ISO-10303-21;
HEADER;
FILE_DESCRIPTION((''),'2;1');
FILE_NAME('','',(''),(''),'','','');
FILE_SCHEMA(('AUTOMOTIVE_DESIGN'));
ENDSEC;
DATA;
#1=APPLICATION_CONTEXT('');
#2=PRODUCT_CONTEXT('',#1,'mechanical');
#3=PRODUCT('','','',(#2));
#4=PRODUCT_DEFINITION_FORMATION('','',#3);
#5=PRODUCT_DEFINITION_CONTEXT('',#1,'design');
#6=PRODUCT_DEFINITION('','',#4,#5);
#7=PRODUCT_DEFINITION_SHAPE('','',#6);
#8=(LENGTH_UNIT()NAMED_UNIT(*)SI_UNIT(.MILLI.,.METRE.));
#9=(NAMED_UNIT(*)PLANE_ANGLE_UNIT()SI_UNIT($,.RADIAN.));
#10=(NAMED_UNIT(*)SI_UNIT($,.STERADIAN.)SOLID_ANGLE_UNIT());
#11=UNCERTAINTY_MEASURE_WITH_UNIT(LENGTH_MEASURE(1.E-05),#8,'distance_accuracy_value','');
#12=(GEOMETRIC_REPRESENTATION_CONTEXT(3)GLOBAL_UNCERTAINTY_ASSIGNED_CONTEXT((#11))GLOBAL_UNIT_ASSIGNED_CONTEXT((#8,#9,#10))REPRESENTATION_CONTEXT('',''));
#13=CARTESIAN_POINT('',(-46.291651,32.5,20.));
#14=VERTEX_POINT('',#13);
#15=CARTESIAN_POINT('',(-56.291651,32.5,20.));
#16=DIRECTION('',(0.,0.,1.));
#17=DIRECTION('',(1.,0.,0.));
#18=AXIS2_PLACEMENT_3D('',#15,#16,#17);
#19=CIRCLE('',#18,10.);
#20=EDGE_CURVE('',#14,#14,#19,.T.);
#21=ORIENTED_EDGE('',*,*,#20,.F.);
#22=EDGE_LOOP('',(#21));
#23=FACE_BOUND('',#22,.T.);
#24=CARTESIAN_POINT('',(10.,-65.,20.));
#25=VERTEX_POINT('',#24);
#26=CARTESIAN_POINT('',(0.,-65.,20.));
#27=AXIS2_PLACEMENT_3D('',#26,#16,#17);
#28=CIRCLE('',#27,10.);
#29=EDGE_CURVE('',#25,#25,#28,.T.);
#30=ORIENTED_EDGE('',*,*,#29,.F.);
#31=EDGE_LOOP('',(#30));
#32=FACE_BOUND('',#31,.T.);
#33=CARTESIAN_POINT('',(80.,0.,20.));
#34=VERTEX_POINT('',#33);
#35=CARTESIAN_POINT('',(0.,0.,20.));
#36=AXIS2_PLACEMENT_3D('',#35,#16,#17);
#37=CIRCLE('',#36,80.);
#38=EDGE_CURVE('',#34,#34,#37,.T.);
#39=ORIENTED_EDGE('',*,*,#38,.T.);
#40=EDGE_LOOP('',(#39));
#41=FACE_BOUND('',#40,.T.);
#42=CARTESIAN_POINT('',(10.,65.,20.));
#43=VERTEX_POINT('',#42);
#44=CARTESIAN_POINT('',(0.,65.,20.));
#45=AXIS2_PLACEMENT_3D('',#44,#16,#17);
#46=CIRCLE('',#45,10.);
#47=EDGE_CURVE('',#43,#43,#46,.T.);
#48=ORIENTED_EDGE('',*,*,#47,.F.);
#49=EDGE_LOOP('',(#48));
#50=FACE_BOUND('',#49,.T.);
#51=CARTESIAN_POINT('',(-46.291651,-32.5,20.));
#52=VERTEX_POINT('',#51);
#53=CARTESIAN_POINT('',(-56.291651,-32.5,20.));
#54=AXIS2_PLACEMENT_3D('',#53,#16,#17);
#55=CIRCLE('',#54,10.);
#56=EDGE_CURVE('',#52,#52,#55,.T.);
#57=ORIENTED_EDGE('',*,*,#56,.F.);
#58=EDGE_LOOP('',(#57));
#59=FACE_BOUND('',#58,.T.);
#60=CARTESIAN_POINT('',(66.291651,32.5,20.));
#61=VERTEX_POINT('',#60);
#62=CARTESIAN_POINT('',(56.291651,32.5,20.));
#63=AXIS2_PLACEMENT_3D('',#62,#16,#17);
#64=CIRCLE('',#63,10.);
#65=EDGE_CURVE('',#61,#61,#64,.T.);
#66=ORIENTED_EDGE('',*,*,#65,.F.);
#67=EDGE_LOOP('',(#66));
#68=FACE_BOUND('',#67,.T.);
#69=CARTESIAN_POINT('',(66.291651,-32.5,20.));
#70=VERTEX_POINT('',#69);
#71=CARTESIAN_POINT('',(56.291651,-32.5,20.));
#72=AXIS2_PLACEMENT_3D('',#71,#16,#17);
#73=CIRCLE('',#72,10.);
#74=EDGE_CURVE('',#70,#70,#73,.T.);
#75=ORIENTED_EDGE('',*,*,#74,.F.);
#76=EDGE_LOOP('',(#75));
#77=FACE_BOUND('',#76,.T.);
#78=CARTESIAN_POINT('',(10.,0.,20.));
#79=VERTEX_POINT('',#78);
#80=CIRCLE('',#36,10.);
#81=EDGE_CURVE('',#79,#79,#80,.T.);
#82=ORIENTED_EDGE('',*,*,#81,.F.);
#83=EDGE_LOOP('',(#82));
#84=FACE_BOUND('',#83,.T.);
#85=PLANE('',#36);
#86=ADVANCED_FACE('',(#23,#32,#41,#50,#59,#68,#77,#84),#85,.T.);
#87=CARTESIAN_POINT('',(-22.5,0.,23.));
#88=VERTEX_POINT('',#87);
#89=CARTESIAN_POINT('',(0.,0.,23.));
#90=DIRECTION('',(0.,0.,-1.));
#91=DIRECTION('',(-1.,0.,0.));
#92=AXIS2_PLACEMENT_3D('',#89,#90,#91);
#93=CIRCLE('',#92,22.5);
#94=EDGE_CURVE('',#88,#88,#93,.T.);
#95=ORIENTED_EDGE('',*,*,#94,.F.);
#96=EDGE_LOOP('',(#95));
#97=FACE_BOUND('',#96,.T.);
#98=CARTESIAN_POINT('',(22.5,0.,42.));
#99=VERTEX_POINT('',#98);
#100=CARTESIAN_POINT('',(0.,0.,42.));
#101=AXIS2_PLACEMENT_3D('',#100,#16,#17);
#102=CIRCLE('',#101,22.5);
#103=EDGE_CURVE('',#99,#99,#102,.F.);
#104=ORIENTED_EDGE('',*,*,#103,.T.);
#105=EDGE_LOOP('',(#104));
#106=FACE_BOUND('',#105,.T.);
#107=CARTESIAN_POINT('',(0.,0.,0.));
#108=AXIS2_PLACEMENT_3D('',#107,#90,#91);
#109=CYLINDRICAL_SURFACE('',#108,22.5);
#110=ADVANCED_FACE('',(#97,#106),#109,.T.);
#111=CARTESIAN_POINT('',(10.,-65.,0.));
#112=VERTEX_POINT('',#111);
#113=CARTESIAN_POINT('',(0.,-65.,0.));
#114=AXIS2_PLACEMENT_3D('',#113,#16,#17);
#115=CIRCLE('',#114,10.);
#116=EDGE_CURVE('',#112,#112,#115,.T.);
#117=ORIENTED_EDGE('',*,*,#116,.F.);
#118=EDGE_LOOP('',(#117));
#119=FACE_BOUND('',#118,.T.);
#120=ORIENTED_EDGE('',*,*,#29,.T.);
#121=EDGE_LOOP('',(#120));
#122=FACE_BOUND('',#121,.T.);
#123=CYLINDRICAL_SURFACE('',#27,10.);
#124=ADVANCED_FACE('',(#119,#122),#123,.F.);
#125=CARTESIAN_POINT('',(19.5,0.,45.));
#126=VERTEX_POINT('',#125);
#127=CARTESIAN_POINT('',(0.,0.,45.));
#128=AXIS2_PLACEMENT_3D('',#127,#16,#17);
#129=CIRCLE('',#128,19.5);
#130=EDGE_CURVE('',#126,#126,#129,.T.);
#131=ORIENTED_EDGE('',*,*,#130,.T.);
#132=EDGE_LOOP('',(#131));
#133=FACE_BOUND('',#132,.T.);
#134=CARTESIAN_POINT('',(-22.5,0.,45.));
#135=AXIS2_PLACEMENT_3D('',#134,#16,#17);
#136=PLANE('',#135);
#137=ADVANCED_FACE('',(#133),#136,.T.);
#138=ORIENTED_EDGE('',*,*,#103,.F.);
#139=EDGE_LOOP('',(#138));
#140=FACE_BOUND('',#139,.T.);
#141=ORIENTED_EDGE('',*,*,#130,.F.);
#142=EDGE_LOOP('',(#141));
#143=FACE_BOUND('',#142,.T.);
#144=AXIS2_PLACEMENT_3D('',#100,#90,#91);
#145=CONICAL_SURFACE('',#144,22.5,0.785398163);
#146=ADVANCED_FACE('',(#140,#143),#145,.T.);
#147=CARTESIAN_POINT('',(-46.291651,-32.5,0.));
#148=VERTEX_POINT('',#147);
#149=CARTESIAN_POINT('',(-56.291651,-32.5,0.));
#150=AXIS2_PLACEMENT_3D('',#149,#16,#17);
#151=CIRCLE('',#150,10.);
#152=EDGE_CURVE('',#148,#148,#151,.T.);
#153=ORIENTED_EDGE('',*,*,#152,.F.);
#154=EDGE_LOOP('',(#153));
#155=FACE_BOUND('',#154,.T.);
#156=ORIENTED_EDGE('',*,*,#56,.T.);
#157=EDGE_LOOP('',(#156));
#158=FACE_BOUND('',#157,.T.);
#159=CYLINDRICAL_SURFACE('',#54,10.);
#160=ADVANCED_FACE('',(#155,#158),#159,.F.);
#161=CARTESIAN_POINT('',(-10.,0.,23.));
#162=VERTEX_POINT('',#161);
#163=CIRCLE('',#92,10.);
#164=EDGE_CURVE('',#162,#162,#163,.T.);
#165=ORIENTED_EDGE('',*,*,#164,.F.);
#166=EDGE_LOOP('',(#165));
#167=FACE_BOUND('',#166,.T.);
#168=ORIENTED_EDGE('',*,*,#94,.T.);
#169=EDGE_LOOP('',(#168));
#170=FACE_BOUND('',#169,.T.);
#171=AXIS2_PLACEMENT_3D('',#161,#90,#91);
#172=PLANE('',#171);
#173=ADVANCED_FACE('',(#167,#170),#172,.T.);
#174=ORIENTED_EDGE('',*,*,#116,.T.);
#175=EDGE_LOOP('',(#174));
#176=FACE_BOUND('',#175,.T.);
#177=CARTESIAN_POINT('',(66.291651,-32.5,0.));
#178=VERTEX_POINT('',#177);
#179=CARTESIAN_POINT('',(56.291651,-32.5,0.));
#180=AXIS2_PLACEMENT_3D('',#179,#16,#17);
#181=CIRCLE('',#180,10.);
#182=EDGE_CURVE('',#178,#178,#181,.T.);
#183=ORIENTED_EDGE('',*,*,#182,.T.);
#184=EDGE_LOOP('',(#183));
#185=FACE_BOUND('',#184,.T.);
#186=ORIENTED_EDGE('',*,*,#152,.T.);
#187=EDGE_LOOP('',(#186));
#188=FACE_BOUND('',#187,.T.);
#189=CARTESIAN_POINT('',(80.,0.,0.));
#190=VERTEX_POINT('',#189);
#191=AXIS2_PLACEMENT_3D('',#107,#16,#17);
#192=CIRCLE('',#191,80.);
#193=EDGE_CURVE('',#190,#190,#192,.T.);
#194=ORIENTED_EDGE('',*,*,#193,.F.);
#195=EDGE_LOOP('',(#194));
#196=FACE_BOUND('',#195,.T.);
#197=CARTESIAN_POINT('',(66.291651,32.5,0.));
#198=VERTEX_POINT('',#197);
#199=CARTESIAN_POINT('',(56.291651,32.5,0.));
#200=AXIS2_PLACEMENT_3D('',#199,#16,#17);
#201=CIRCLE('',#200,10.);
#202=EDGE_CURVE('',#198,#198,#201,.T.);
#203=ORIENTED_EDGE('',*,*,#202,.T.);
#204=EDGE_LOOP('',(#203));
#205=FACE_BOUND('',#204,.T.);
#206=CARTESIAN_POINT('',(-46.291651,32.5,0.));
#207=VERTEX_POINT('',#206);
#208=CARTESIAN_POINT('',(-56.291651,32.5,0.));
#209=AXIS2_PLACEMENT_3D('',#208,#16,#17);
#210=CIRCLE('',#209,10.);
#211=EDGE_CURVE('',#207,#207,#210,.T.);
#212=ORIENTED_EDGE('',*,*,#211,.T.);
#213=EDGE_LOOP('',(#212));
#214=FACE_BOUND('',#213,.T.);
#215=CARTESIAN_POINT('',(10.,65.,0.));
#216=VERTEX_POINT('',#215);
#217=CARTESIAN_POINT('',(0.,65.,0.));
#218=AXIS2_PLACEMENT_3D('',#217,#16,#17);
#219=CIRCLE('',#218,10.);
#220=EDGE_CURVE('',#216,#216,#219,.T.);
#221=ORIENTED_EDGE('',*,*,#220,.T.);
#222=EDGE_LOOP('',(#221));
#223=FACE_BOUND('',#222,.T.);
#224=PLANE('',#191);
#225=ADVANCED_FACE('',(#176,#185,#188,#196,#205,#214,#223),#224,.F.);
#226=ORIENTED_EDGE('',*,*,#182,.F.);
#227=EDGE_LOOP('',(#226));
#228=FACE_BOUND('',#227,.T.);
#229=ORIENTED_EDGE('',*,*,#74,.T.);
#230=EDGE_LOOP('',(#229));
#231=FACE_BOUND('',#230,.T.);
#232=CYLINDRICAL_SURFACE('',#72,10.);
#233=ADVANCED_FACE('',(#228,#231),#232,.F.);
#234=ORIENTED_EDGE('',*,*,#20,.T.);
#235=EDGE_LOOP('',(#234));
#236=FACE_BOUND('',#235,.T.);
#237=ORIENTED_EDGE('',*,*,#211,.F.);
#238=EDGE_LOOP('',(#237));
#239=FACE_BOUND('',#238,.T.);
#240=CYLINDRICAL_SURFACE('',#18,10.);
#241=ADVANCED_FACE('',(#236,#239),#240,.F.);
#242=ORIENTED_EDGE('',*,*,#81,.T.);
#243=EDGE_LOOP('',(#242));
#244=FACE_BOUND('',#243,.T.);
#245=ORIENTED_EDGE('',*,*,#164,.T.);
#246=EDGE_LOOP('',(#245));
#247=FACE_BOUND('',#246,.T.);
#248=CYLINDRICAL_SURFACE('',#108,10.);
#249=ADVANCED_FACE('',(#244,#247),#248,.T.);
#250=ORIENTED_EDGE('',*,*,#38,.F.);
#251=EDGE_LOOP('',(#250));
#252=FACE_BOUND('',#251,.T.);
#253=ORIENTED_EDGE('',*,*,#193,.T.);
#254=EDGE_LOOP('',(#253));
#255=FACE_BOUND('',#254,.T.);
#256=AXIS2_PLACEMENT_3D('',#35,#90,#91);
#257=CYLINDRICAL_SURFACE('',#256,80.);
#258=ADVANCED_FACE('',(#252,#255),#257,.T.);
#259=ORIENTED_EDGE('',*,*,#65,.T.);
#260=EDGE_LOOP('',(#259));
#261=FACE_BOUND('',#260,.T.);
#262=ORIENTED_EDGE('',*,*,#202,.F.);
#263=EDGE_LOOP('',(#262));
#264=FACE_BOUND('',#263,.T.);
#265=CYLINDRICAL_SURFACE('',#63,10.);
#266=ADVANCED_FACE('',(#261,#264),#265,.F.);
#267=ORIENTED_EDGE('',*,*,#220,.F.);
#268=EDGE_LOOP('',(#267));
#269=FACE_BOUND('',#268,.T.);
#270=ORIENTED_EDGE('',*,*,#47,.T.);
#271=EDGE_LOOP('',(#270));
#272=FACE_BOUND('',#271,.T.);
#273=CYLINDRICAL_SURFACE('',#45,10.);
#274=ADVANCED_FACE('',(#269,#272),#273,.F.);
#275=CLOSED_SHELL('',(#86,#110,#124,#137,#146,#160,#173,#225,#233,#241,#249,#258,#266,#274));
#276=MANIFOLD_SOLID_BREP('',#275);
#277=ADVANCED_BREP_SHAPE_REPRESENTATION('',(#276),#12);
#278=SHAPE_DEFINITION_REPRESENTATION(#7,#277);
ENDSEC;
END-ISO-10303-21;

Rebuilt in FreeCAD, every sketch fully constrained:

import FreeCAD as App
import Part
import Sketcher

V = App.Vector
Q = App.Units.Quantity


def edges_at(feature, points):
    """Names of the edges that pass closest to the given points."""
    edges = feature.Shape.Edges
    near = lambda p: min(range(len(edges)), key=lambda i: edges[i].distToShape(Part.Vertex(*p))[0])
    return sorted({f"Edge{near(p) + 1}" for p in points})

doc = App.newDocument("Part")
body = doc.addObject("PartDesign::Body", "Body")

# Sketch on XY plane
sketch1 = body.newObject("Sketcher::SketchObject", "Sketch")
sketch1.AttachmentSupport = (doc.getObject("XY_Plane"), [""])
sketch1.MapMode = "FlatFace"
sketch1.addGeometry(Part.Circle(V(0, 0, 0), V(0, 0, 1), 80), False)
sketch1.addConstraint(Sketcher.Constraint("Coincident", 0, 3, -1, 1))
sketch1.addConstraint(Sketcher.Constraint("Diameter", 0, Q("160 mm")))
pad1 = body.newObject("PartDesign::Pad", "Pad")
pad1.Profile = sketch1
pad1.Length = 20

# Sketch on XZ plane
sketch2 = body.newObject("Sketcher::SketchObject", "Sketch001")
sketch2.AttachmentSupport = (doc.getObject("XZ_Plane"), [""])
sketch2.MapMode = "FlatFace"
sketch2.addGeometry(Part.LineSegment(V(-10, 20, 0), V(-10, 23, 0)), False)
sketch2.addGeometry(Part.LineSegment(V(-10, 23, 0), V(-22.5, 23, 0)), False)
sketch2.addGeometry(Part.LineSegment(V(-22.5, 23, 0), V(-22.5, 45, 0)), False)
sketch2.addGeometry(Part.LineSegment(V(-22.5, 45, 0), V(0, 45, 0)), False)
sketch2.addGeometry(Part.LineSegment(V(0, 45, 0), V(0, 20, 0)), False)
sketch2.addGeometry(Part.LineSegment(V(0, 20, 0), V(-10, 20, 0)), False)
sketch2.addConstraint(Sketcher.Constraint("Coincident", 0, 2, 1, 1))
sketch2.addConstraint(Sketcher.Constraint("Coincident", 1, 2, 2, 1))
sketch2.addConstraint(Sketcher.Constraint("Coincident", 2, 2, 3, 1))
sketch2.addConstraint(Sketcher.Constraint("Coincident", 3, 2, 4, 1))
sketch2.addConstraint(Sketcher.Constraint("Coincident", 4, 2, 5, 1))
sketch2.addConstraint(Sketcher.Constraint("Coincident", 5, 2, 0, 1))
sketch2.addConstraint(Sketcher.Constraint("Vertical", 0))
sketch2.addConstraint(Sketcher.Constraint("Horizontal", 1))
sketch2.addConstraint(Sketcher.Constraint("Vertical", 2))
sketch2.addConstraint(Sketcher.Constraint("Horizontal", 3))
sketch2.addConstraint(Sketcher.Constraint("Vertical", 4))
sketch2.addConstraint(Sketcher.Constraint("Horizontal", 5))
sketch2.addConstraint(Sketcher.Constraint("PointOnObject", 3, 2, -2))
sketch2.addConstraint(Sketcher.Constraint("DistanceX", 5, 2, 5, 1, Q("10 mm")))
sketch2.addConstraint(Sketcher.Constraint("DistanceY", 0, 1, 0, 2, Q("3 mm")))
sketch2.addConstraint(Sketcher.Constraint("DistanceY", 2, 1, 2, 2, Q("22 mm")))
sketch2.addConstraint(Sketcher.Constraint("DistanceX", 1, 2, 1, 1, Q("12.5 mm")))
sketch2.addConstraint(Sketcher.Constraint("DistanceY", -1, 1, 0, 2, Q("23 mm")))
revolution = body.newObject("PartDesign::Revolution", "Revolution")
revolution.Profile = sketch2
revolution.ReferenceAxis = (sketch2, ["V_Axis"])
revolution.Angle = 360
doc.recompute()

chamfer = body.newObject("PartDesign::Chamfer", "Chamfer")
chamfer.Base = (revolution, edges_at(revolution, [(22.5, 0, 45)]))
chamfer.Size = 3

# Sketch on XY plane
sketch3 = body.newObject("Sketcher::SketchObject", "Sketch002")
sketch3.AttachmentSupport = (doc.getObject("XY_Plane"), [""])
sketch3.MapMode = "FlatFace"
sketch3.AttachmentOffset = App.Placement(V(0, 0, 20), App.Rotation())
sketch3.addGeometry(Part.Circle(V(0, 65, 0), V(0, 0, 1), 10), False)
sketch3.addConstraint(Sketcher.Constraint("PointOnObject", 0, 3, -2))
sketch3.addConstraint(Sketcher.Constraint("Diameter", 0, Q("20 mm")))
sketch3.addConstraint(Sketcher.Constraint("DistanceY", -1, 1, 0, 3, Q("65 mm")))
doc.recompute()
hole = body.newObject("PartDesign::Hole", "Hole")
hole.Profile = sketch3
hole.ThreadType = "None"
hole.Diameter = 20
hole.DepthType = "ThroughAll"
doc.recompute()

polarpattern = body.newObject("PartDesign::PolarPattern", "PolarPattern")
polarpattern.Originals = [hole]
polarpattern.Axis = (doc.getObject("Z_Axis"), [""])
polarpattern.Angle = 360
polarpattern.Occurrences = 6
body.Tip = polarpattern

doc.recompute()
